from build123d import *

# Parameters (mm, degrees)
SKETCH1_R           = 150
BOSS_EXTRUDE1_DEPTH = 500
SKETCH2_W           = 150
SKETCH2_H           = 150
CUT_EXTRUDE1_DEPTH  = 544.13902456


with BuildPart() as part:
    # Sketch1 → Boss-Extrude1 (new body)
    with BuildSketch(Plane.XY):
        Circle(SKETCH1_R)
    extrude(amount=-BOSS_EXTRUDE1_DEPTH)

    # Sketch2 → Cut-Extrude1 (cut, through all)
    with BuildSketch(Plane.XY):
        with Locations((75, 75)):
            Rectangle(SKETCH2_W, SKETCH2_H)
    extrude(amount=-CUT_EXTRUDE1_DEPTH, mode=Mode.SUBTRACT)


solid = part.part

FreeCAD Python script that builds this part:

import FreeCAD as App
import Part
import Sketcher

doc = App.newDocument("Part")
params = doc.addObject("Spreadsheet::Sheet", "Params")
for row, (alias, value) in enumerate([
    ("sketch1_diameter", "300 mm"),
    ("pad1_length", "500 mm"),
    ("sketch2_width", "150 mm"),
], start=1):
    params.set(f"A{row}", alias)
    params.set(f"B{row}", "=" + value)
    params.setAlias(f"B{row}", alias)

body = doc.addObject("PartDesign::Body", "Body")

# Sketch on XY plane
sketch1 = body.newObject("Sketcher::SketchObject", "Sketch")
sketch1.AttachmentSupport = (doc.getObject("XY_Plane"), [""])
sketch1.MapMode = "FlatFace"
sketch1.addGeometry(Part.Circle(App.Vector(0, 0, 0), App.Vector(0, 0, 1), 150), False)
sketch1.addConstraint([
    Sketcher.Constraint("Coincident", 0, 3, -1, 1),
    Sketcher.Constraint("Diameter", 0, 300.0),
])
sketch1.setExpression("Constraints[1]", "Params.sketch1_diameter")
pad1 = body.newObject("PartDesign::Pad", "Pad")
pad1.Profile = sketch1
pad1.setExpression("Length", "Params.pad1_length")
pad1.Reversed = True

# Sketch on XY plane
sketch2 = body.newObject("Sketcher::SketchObject", "Sketch001")
sketch2.AttachmentSupport = (doc.getObject("XY_Plane"), [""])
sketch2.MapMode = "FlatFace"
sketch2.addGeometry([
    Part.LineSegment(App.Vector(0, 150, 0), App.Vector(0, 0, 0)),
    Part.LineSegment(App.Vector(0, 0, 0), App.Vector(150, 0, 0)),
    Part.LineSegment(App.Vector(150, 0, 0), App.Vector(150, 150, 0)),
    Part.LineSegment(App.Vector(150, 150, 0), App.Vector(0, 150, 0)),
], False)
sketch2.addConstraint([
    Sketcher.Constraint("Coincident", 0, 2, 1, 1),
    Sketcher.Constraint("Coincident", 1, 2, 2, 1),
    Sketcher.Constraint("Coincident", 2, 2, 3, 1),
    Sketcher.Constraint("Coincident", 3, 2, 0, 1),
    Sketcher.Constraint("Vertical", 0),
    Sketcher.Constraint("Horizontal", 1),
    Sketcher.Constraint("Vertical", 2),
    Sketcher.Constraint("Horizontal", 3),
    Sketcher.Constraint("Coincident", 0, 2, -1, 1),
    Sketcher.Constraint("Equal", 3, 0),
    Sketcher.Constraint("DistanceX", 1, 1, 1, 2, 150.0),
])
sketch2.setExpression("Constraints[10]", "Params.sketch2_width")
pocket1 = body.newObject("PartDesign::Pocket", "Pocket")
pocket1.Profile = sketch2
pocket1.Type = "ThroughAll"

doc.recompute()
